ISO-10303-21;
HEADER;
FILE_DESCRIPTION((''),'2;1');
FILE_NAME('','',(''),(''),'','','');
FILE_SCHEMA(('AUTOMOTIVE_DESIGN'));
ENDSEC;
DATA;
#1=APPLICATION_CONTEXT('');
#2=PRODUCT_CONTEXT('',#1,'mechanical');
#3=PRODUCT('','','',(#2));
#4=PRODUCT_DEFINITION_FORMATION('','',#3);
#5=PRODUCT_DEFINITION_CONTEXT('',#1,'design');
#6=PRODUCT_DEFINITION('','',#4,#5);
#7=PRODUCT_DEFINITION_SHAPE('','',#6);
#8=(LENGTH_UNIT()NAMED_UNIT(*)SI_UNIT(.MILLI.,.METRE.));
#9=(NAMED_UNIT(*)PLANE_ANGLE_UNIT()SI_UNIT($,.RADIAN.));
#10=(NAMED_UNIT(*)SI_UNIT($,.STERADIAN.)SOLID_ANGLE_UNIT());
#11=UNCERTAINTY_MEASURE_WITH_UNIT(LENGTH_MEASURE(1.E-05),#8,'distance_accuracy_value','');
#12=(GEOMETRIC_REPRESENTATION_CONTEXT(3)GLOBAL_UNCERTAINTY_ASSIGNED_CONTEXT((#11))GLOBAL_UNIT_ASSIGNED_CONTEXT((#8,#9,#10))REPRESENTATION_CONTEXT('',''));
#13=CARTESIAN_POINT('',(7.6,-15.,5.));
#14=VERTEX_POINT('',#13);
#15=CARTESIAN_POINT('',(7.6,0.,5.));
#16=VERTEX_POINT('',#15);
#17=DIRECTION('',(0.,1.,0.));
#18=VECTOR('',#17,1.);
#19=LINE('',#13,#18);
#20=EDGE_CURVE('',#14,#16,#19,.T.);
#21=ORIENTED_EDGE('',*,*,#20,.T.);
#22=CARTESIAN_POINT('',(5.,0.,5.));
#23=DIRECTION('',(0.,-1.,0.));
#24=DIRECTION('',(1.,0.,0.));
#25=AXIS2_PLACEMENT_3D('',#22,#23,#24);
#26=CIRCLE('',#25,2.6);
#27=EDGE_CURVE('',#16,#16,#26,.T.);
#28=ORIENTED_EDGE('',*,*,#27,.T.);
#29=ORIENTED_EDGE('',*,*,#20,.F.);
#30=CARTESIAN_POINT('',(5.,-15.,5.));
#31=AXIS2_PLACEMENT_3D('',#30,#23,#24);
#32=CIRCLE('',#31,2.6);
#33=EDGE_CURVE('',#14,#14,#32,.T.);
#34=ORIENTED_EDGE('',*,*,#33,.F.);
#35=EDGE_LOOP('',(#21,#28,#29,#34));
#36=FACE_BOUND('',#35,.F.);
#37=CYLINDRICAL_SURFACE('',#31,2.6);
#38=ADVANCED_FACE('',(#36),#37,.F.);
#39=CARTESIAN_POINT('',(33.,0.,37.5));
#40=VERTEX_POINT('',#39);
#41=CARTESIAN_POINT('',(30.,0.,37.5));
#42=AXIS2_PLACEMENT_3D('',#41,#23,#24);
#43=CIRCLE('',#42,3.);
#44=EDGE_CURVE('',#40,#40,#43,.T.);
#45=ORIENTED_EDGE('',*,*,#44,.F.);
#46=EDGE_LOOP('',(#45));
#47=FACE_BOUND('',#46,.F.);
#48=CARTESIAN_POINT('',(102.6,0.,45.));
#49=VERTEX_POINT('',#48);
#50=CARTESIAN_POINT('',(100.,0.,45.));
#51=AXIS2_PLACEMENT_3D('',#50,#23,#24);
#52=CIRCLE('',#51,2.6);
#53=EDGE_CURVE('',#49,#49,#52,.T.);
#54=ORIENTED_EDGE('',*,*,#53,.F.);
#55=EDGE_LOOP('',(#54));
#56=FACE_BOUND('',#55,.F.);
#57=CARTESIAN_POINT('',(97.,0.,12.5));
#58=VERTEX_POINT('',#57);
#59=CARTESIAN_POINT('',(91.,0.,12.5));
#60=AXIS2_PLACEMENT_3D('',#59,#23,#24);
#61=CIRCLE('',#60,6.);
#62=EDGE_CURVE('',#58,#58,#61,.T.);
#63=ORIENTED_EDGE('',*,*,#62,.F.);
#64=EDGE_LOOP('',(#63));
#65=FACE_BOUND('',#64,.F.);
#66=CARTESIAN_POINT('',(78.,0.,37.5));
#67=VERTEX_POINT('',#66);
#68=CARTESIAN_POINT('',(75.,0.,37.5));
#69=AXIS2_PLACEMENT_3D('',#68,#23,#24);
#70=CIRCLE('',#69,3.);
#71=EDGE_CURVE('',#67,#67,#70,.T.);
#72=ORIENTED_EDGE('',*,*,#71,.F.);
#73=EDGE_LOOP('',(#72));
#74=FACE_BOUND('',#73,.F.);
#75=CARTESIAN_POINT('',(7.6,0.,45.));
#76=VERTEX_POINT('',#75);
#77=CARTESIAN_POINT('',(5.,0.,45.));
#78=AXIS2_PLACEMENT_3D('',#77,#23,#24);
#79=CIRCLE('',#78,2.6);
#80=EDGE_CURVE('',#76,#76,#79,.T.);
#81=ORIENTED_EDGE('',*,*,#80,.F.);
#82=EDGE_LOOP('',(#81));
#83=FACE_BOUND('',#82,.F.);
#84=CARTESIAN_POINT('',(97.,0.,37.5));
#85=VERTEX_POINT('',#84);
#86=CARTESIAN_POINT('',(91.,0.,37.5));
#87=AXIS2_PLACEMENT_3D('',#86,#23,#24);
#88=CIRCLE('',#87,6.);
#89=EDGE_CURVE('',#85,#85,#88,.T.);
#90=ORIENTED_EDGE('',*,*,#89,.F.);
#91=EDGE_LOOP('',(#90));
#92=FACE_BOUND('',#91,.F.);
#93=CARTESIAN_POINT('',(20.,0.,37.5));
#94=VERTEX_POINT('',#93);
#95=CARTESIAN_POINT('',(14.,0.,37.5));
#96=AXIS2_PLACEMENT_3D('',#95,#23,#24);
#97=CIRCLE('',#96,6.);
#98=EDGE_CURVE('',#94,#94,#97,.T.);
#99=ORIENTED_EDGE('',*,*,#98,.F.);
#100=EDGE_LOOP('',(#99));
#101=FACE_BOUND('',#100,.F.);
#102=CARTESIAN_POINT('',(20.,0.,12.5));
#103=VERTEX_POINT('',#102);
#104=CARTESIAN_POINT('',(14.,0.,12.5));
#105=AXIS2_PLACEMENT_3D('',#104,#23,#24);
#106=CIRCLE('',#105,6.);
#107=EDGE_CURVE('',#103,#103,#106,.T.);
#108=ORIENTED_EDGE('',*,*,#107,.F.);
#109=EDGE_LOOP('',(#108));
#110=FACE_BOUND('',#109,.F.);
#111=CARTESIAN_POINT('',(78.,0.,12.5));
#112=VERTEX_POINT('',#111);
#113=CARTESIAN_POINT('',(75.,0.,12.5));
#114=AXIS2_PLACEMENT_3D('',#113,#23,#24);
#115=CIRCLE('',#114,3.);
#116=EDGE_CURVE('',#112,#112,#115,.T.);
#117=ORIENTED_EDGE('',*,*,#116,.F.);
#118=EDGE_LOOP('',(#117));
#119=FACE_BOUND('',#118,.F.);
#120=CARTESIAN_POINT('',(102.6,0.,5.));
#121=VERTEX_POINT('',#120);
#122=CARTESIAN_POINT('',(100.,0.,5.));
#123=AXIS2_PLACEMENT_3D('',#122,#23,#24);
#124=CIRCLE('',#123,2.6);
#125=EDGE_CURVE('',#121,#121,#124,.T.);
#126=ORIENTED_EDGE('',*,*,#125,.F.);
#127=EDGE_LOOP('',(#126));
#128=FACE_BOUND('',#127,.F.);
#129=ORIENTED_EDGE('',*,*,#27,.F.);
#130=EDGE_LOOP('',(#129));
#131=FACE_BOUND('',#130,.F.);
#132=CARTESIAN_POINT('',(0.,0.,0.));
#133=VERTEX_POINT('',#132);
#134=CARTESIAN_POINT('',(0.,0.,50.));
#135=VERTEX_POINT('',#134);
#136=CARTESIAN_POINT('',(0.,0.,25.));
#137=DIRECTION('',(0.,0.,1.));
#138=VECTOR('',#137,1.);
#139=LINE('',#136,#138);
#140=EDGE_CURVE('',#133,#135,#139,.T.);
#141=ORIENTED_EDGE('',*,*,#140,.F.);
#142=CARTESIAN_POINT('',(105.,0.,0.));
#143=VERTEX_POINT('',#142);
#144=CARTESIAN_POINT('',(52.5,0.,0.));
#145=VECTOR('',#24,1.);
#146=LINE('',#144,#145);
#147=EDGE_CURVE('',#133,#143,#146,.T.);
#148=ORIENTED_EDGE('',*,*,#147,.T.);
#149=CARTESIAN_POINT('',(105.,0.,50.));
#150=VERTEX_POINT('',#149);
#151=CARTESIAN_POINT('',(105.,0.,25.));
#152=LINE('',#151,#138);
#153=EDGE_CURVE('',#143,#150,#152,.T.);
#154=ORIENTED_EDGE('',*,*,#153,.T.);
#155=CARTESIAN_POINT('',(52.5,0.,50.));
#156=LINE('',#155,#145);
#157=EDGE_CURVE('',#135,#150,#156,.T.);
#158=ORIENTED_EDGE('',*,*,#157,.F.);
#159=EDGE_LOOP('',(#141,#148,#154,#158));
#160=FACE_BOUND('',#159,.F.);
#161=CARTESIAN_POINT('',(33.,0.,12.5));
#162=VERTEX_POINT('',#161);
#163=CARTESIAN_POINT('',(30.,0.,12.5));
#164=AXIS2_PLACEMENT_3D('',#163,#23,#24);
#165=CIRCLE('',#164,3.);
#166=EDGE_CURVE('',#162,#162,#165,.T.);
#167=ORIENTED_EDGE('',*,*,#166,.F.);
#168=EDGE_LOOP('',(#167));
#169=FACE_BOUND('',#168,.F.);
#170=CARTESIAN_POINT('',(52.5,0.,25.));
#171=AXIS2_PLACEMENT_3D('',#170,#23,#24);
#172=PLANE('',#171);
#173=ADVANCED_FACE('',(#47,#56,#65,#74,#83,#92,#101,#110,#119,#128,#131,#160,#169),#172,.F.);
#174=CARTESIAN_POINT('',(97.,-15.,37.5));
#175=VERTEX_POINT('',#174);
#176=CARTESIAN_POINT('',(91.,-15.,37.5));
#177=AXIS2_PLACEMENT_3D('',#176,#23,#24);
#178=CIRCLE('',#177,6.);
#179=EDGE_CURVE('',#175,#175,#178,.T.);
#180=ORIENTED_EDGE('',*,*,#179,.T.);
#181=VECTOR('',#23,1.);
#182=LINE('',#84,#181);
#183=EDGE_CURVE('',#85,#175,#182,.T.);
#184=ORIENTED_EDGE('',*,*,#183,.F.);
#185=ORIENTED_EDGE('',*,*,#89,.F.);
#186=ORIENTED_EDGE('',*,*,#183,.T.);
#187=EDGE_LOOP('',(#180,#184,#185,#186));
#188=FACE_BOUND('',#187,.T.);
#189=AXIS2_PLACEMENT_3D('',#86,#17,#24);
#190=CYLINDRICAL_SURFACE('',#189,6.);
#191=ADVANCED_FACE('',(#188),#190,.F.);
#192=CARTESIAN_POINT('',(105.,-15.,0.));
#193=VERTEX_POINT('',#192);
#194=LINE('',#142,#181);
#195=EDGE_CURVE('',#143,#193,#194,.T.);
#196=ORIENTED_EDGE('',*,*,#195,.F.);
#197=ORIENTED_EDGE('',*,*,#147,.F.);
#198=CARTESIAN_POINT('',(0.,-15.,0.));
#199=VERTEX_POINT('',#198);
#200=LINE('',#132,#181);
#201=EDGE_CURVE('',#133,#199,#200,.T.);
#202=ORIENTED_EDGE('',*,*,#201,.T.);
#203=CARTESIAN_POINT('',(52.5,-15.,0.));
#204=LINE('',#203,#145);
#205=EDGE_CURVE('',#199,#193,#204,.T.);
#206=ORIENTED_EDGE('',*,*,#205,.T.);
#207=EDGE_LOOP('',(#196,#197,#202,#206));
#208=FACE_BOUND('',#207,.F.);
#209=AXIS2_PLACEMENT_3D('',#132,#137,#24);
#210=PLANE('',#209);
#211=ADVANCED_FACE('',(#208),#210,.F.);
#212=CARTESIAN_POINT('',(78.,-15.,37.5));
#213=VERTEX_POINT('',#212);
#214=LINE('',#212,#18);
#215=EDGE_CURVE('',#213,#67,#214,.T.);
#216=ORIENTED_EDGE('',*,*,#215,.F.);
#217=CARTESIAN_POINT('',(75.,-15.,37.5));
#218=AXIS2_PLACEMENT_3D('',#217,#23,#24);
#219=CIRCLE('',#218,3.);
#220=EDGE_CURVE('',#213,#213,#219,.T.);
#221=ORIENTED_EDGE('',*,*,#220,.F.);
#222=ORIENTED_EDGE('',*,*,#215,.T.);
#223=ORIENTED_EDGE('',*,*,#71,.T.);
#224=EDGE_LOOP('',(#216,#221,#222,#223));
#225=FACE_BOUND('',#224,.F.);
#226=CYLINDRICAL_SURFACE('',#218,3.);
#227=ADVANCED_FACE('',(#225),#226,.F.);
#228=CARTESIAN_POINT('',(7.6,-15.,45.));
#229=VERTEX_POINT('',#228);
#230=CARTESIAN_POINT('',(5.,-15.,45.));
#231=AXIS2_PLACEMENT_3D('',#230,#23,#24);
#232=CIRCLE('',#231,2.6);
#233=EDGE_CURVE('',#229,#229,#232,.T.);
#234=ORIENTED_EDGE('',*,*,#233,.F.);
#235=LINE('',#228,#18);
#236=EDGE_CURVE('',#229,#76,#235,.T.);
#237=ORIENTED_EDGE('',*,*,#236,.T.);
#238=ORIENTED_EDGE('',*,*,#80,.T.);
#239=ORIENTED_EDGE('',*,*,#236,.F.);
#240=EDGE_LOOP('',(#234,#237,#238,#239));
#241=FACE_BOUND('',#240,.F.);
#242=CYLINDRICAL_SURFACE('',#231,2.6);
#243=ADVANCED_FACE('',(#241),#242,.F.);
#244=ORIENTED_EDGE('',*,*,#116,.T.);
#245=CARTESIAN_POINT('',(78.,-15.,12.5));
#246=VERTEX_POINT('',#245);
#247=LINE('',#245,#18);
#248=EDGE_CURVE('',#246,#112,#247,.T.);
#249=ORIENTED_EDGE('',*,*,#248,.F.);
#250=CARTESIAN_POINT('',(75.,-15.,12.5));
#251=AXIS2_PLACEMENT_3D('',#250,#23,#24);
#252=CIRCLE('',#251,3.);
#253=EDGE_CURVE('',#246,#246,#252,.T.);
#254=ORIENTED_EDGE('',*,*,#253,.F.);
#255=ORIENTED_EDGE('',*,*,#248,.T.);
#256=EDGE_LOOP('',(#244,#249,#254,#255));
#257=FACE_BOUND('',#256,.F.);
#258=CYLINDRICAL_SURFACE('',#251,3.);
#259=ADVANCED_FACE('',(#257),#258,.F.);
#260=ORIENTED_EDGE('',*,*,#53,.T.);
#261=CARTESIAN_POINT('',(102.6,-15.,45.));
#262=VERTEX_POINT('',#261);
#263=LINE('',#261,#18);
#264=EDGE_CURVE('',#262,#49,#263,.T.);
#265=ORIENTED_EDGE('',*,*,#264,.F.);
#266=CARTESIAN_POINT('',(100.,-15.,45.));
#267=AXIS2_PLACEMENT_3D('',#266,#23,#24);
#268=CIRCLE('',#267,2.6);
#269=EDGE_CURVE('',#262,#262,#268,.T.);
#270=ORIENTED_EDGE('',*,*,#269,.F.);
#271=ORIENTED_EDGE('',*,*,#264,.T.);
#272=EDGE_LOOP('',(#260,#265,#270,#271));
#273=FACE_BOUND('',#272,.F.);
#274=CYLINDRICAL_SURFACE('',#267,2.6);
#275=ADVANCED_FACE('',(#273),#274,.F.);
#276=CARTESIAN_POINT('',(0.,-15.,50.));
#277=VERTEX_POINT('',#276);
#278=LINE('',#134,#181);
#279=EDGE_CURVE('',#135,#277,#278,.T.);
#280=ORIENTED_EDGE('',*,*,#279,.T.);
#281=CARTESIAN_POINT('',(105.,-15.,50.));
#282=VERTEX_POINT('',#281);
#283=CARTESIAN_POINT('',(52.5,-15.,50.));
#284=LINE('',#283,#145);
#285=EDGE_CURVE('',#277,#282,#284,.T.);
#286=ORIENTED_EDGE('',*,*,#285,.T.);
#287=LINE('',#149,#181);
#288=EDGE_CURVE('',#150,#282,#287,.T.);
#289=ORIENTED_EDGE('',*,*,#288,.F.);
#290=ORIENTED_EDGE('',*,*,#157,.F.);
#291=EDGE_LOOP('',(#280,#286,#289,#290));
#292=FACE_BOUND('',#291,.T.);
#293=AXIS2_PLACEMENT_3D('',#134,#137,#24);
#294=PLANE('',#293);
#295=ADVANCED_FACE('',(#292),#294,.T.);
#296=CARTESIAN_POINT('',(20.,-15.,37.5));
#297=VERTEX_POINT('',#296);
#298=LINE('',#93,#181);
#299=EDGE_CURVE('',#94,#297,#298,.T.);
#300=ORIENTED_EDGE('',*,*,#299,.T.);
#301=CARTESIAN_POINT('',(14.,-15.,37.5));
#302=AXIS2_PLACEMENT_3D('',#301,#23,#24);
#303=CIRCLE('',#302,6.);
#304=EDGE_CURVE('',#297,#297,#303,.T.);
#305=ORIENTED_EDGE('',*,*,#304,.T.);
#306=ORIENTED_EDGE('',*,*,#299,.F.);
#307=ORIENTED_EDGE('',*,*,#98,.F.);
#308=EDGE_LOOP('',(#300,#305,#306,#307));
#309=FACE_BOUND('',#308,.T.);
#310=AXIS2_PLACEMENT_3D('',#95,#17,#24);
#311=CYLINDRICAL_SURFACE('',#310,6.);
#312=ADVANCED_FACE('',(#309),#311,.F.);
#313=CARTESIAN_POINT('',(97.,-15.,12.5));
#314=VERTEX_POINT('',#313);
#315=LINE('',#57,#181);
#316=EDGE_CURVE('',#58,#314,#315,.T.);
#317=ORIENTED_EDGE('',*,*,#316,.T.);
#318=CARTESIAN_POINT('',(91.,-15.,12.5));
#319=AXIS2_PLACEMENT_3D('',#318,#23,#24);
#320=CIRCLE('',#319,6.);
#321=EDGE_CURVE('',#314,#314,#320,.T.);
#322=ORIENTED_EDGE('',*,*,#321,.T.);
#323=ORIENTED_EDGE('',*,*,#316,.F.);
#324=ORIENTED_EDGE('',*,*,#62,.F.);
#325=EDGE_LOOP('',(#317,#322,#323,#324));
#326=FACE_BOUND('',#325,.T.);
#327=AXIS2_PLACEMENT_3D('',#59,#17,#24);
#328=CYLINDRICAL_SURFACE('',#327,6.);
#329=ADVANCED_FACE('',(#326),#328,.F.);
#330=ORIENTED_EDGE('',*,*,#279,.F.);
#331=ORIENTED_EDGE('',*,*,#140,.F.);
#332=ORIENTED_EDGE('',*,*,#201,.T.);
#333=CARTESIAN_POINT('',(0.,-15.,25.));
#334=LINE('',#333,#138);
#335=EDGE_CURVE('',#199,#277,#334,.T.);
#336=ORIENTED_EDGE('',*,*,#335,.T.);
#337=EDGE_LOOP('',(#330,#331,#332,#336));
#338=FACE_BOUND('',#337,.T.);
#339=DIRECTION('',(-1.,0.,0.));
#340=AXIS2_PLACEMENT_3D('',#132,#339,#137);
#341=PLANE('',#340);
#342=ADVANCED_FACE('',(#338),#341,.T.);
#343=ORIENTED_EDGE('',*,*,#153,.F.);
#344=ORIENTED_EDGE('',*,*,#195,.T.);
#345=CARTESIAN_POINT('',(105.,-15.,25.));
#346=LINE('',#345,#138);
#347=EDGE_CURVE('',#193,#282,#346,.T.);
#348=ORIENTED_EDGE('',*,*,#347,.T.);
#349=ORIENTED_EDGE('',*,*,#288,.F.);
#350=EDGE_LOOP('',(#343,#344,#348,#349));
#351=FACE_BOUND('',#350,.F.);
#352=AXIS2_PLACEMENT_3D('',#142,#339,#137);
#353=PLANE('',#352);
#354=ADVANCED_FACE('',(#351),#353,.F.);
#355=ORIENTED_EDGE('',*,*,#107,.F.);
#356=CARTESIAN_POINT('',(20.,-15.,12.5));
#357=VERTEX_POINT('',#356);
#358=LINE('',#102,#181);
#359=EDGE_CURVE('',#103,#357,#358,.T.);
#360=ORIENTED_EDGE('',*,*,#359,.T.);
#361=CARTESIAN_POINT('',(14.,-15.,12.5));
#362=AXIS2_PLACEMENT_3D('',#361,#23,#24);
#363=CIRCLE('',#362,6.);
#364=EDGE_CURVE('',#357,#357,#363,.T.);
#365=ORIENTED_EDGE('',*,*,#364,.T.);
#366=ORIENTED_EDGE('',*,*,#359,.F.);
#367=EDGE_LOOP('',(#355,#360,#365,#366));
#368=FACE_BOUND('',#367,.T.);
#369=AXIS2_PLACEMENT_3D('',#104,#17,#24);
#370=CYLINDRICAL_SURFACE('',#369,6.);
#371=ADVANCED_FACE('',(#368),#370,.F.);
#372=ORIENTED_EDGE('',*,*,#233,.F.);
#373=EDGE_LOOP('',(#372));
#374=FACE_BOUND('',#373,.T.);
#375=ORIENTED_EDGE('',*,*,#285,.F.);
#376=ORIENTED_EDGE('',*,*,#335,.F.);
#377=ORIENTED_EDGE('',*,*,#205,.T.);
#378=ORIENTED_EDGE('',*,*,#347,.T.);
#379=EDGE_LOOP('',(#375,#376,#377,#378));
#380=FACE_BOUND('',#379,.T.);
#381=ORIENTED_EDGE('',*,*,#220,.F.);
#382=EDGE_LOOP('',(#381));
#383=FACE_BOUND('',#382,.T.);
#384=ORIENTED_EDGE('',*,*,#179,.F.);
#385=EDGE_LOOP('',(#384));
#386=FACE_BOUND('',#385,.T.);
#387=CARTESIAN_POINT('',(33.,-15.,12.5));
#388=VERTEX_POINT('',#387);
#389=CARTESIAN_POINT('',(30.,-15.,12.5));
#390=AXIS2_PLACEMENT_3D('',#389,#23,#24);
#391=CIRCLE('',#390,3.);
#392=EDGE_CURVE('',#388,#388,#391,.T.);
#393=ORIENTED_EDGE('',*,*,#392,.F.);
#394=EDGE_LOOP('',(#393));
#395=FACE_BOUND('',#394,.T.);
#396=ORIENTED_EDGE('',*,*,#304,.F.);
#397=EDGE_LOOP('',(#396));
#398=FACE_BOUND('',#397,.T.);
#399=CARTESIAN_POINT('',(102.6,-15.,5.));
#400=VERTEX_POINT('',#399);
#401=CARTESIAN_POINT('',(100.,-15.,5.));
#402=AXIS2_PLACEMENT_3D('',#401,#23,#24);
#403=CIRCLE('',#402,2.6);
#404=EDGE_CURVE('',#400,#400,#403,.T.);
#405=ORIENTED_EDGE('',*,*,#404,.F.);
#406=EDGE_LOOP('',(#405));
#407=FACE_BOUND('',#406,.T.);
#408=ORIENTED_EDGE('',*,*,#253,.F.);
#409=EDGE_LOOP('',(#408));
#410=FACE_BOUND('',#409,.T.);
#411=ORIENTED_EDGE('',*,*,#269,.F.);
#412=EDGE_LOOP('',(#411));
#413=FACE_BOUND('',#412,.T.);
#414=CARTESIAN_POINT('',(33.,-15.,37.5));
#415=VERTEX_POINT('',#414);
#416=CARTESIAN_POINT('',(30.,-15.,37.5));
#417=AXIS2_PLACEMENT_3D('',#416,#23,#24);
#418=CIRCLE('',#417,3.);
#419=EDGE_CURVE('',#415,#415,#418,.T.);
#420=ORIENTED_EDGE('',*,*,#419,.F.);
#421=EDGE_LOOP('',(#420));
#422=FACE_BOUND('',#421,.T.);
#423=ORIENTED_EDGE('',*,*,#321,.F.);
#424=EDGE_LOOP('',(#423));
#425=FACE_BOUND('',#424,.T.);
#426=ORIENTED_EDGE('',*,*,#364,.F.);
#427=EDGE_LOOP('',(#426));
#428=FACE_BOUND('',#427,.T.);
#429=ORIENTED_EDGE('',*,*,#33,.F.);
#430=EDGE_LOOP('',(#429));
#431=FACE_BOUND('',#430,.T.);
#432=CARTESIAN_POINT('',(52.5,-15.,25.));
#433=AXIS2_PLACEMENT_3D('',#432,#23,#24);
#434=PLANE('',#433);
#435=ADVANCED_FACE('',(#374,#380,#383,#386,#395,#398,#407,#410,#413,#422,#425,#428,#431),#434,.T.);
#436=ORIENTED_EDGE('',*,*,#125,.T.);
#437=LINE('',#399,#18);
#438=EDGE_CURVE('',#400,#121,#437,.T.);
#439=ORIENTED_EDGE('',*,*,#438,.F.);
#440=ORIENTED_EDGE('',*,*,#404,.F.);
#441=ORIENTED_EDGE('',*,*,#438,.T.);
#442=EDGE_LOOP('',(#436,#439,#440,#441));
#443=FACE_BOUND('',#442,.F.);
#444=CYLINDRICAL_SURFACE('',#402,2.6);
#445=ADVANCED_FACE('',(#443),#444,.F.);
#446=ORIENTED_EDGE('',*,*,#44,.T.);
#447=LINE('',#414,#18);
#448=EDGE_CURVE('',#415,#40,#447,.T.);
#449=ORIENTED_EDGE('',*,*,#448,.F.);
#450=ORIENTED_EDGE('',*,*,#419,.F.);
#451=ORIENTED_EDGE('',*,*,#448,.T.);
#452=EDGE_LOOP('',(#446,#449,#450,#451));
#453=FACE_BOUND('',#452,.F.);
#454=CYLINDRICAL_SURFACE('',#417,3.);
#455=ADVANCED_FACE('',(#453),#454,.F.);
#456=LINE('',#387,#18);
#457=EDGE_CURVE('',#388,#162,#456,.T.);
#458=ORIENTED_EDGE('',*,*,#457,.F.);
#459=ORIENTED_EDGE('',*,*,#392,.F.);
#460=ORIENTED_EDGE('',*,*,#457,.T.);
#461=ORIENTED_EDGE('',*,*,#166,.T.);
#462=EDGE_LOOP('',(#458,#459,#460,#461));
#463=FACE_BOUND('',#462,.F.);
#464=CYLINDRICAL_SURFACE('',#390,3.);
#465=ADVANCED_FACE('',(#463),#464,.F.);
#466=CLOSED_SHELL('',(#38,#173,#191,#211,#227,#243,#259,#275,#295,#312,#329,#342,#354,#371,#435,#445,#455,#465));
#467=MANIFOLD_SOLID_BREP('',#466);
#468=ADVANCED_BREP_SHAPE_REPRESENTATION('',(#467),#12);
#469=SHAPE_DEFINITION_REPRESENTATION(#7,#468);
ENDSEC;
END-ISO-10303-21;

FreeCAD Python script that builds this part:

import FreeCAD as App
import Part
import Sketcher


def add_polygon(sketch, points):
    """Adds a closed chain of lines whose ends are joined by coincident constraints."""
    first, n = sketch.GeometryCount, len(points)
    for a, b in zip(points, points[1:] + points[:1]):
        sketch.addGeometry(Part.LineSegment(App.Vector(*a, 0), App.Vector(*b, 0)), False)
    for i in range(n):
        sketch.addConstraint(Sketcher.Constraint("Coincident", first + i, 2, first + (i + 1) % n, 1))

doc = App.newDocument("Part")
body = doc.addObject("PartDesign::Body", "Body")

# Sketch on XZ plane
sketch1 = body.newObject("Sketcher::SketchObject", "Sketch")
sketch1.AttachmentSupport = (doc.getObject("XZ_Plane"), [""])
sketch1.MapMode = "FlatFace"
add_polygon(sketch1, [(0, 50), (0, 0), (105, 0), (105, 50)])  # lines 0-3
sketch1.addGeometry(Part.Circle(App.Vector(14, 12, 0), App.Vector(0, 0, 1), 6), False)  # 4
sketch1.addGeometry(Part.Circle(App.Vector(91, 12, 0), App.Vector(0, 0, 1), 6), False)  # 5
sketch1.addGeometry(Part.Circle(App.Vector(14, 38, 0), App.Vector(0, 0, 1), 6), False)  # 6
sketch1.addGeometry(Part.Circle(App.Vector(91, 38, 0), App.Vector(0, 0, 1), 6), False)  # 7
sketch1.addConstraint([
    Sketcher.Constraint("Vertical", 0),
    Sketcher.Constraint("Horizontal", 1),
    Sketcher.Constraint("Vertical", 2),
    Sketcher.Constraint("Horizontal", 3),
    Sketcher.Constraint("Coincident", 0, 2, -1, 1),
    Sketcher.Constraint("Equal", 4, 5),
    Sketcher.Constraint("Equal", 5, 6),
    Sketcher.Constraint("Equal", 6, 7),
    Sketcher.Constraint("Horizontal", 4, 3, 5, 3),
    Sketcher.Constraint("Horizontal", 6, 3, 7, 3),
    Sketcher.Constraint("Vertical", 4, 3, 6, 3),
    Sketcher.Constraint("Vertical", 5, 3, 7, 3),
    Sketcher.Constraint("Diameter", 4, 12.0),
    Sketcher.Constraint("DistanceX", 1, 1, 1, 2, 105.0),
    Sketcher.Constraint("DistanceY", 0, 2, 0, 1, 50.0),
    Sketcher.Constraint("DistanceX", -1, 1, 4, 3, 14.0),
    Sketcher.Constraint("DistanceX", -1, 1, 5, 3, 91.0),
    Sketcher.Constraint("DistanceY", 4, 3, 6, 3, 25.0),
    Sketcher.Constraint("DistanceY", -1, 1, 4, 3, 12.5),
])
pad1 = body.newObject("PartDesign::Pad", "Pad")
pad1.Profile = sketch1
pad1.Length = 15

# Sketch on XZ plane
sketch2 = body.newObject("Sketcher::SketchObject", "Sketch001")
sketch2.AttachmentSupport = (doc.getObject("XZ_Plane"), [""])
sketch2.MapMode = "FlatFace"
sketch2.AttachmentOffset = App.Placement(App.Vector(0, 0, 15), App.Rotation())
sketch2.addGeometry([
    Part.Circle(App.Vector(30, 37.5, 0), App.Vector(0, 0, 1), 3),
    Part.Circle(App.Vector(75, 37.5, 0), App.Vector(0, 0, 1), 3),
    Part.Circle(App.Vector(30, 12.5, 0), App.Vector(0, 0, 1), 3),
    Part.Circle(App.Vector(75, 12.5, 0), App.Vector(0, 0, 1), 3),
], False)
sketch2.addConstraint([
    Sketcher.Constraint("Equal", 0, 1),
    Sketcher.Constraint("Equal", 1, 2),
    Sketcher.Constraint("Equal", 2, 3),
    Sketcher.Constraint("Horizontal", 0, 3, 1, 3),
    Sketcher.Constraint("Horizontal", 2, 3, 3, 3),
    Sketcher.Constraint("Vertical", 0, 3, 2, 3),
    Sketcher.Constraint("Vertical", 1, 3, 3, 3),
    Sketcher.Constraint("Diameter", 0, 6.0),
    Sketcher.Constraint("DistanceX", -1, 1, 0, 3, 30.0),
    Sketcher.Constraint("DistanceX", -1, 1, 1, 3, 75.0),
    Sketcher.Constraint("DistanceY", 2, 3, 0, 3, 25.0),
    Sketcher.Constraint("DistanceY", -1, 1, 0, 3, 37.5),
])
pocket1 = body.newObject("PartDesign::Pocket", "Pocket")
pocket1.Profile = sketch2
pocket1.Type = "ThroughAll"

# Sketch on XZ plane
sketch3 = body.newObject("Sketcher::SketchObject", "Sketch002")
sketch3.AttachmentSupport = (doc.getObject("XZ_Plane"), [""])
sketch3.MapMode = "FlatFace"
sketch3.AttachmentOffset = App.Placement(App.Vector(0, 0, 15), App.Rotation())
sketch3.addGeometry([
    Part.Circle(App.Vector(5, 45, 0), App.Vector(0, 0, 1), 2.6),
    Part.Circle(App.Vector(100, 45, 0), App.Vector(0, 0, 1), 2.6),
    Part.Circle(App.Vector(100, 5, 0), App.Vector(0, 0, 1), 2.6),
    Part.Circle(App.Vector(5, 5, 0), App.Vector(0, 0, 1), 2.6),
], False)
sketch3.addConstraint([
    Sketcher.Constraint("Equal", 0, 1),
    Sketcher.Constraint("Equal", 1, 2),
    Sketcher.Constraint("Equal", 2, 3),
    Sketcher.Constraint("Horizontal", 0, 3, 1, 3),
    Sketcher.Constraint("Horizontal", 2, 3, 3, 3),
    Sketcher.Constraint("Vertical", 1, 3, 2, 3),
    Sketcher.Constraint("Vertical", 0, 3, 3, 3),
    Sketcher.Constraint("Diameter", 0, 5.2),
    Sketcher.Constraint("DistanceX", -1, 1, 0, 3, 5.0),
    Sketcher.Constraint("DistanceY", -1, 1, 0, 3, 45.0),
    Sketcher.Constraint("DistanceX", -1, 1, 1, 3, 100.0),
    Sketcher.Constraint("DistanceY", -1, 1, 2, 3, 5.0),
])
pocket2 = body.newObject("PartDesign::Pocket", "Pocket001")
pocket2.Profile = sketch3
pocket2.Type = "ThroughAll"

doc.recompute()
